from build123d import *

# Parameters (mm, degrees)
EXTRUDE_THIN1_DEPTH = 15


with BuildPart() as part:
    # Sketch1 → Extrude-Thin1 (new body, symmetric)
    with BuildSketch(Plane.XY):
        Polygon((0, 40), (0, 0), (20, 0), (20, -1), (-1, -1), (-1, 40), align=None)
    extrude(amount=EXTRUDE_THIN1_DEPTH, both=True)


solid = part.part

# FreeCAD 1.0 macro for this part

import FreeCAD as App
import Part
import Sketcher
from FreeCAD import Vector


def add_polygon(sketch, points):
    """Adds a closed chain of lines whose ends are joined by coincident constraints."""
    first, n = sketch.GeometryCount, len(points)
    for a, b in zip(points, points[1:] + points[:1]):
        sketch.addGeometry(Part.LineSegment(App.Vector(*a, 0), App.Vector(*b, 0)), False)
    for i in range(n):
        sketch.addConstraint(Sketcher.Constraint("Coincident", first + i, 2, first + (i + 1) % n, 1))

doc = App.newDocument("Part")
body = doc.addObject("PartDesign::Body", "Body")

sketch1 = body.newObject("Sketcher::SketchObject", "Sketch")
sketch1.AttachmentSupport = (doc.getObject("XY_Plane"), [""])
sketch1.MapMode = "FlatFace"
add_polygon(sketch1, [(0, 0), (0, 40), (-1, 40), (-1, -1), (20, -1), (20, 0)])
sketch1.addConstraint(Sketcher.Constraint("Vertical", 0))
sketch1.addConstraint(Sketcher.Constraint("Horizontal", 1))
sketch1.addConstraint(Sketcher.Constraint("Vertical", 2))
sketch1.addConstraint(Sketcher.Constraint("Horizontal", 3))
sketch1.addConstraint(Sketcher.Constraint("Vertical", 4))
sketch1.addConstraint(Sketcher.Constraint("Horizontal", 5))
sketch1.addConstraint(Sketcher.Constraint("Coincident", 5, 2, -1, 1))
sketch1.addConstraint(Sketcher.Constraint("Equal", 1, 4))
sketch1.addConstraint(Sketcher.Constraint("DistanceX", 1, 2, 1, 1, 1.0))
sketch1.addConstraint(Sketcher.Constraint("DistanceX", 3, 1, 3, 2, 21.0))
sketch1.addConstraint(Sketcher.Constraint("DistanceY", 0, 1, 0, 2, 40.0))
pad1 = body.newObject("PartDesign::Pad", "Pad")
pad1.Profile = sketch1
pad1.Length = 30
pad1.Midplane = True

doc.recompute()
